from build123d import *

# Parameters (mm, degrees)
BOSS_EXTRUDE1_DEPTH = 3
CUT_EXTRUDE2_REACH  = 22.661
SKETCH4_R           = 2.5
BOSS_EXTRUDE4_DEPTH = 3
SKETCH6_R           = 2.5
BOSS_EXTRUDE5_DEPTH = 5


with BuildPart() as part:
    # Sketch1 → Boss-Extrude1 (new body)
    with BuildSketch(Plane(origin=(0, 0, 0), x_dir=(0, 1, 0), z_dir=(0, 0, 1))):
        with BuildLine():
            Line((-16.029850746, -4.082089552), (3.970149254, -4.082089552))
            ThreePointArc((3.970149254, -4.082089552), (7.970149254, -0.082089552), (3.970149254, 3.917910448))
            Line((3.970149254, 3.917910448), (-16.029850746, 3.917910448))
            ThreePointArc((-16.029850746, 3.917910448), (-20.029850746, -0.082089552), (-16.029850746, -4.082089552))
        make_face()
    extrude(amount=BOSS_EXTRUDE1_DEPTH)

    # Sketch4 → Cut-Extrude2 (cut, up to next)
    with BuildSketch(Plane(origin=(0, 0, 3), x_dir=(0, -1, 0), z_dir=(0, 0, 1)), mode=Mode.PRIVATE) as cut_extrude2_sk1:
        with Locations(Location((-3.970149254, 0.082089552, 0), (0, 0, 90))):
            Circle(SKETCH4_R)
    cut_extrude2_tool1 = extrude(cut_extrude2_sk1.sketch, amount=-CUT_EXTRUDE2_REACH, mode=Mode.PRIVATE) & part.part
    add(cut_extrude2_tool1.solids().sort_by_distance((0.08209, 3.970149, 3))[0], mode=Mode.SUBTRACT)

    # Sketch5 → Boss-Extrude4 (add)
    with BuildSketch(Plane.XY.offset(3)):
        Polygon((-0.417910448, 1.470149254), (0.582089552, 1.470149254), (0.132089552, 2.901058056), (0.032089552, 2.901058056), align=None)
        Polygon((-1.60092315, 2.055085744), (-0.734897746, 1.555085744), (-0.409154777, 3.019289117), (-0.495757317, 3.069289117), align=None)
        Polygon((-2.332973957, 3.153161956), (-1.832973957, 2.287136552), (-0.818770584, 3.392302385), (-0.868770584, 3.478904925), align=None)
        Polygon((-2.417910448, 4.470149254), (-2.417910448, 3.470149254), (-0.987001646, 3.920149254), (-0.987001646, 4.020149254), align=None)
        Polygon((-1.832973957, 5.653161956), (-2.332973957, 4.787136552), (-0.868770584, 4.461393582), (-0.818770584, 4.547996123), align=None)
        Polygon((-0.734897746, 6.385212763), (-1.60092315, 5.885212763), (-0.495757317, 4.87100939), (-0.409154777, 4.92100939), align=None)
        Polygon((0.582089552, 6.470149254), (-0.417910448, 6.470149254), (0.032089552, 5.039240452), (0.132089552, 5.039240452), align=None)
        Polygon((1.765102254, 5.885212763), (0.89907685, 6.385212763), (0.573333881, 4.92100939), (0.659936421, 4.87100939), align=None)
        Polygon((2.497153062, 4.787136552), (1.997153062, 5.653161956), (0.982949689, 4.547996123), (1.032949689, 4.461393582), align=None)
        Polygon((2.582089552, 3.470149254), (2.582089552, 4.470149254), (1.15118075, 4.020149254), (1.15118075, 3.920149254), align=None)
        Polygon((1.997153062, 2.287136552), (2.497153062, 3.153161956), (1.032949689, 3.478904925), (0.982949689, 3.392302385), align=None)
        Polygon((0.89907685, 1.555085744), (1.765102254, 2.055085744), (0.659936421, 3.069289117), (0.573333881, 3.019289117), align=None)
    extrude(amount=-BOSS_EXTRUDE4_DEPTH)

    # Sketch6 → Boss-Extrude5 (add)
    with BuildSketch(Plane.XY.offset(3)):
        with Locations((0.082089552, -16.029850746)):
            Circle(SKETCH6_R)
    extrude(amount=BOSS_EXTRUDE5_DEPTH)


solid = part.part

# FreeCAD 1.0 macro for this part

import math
import FreeCAD as App
import Part
import Sketcher
from FreeCAD import Vector
Q = App.Units.Quantity

doc = App.newDocument("Part")
params = doc.addObject("Spreadsheet::Sheet", "Params")
for row, (alias, value) in enumerate([
    ("sketch1_radius", "4 mm"),
    ("sketch1_height", "20 mm"),
    ("pad1_length", "3 mm"),
    ("sketch2_diameter", "5 mm"),
    ("sketch3_width", "1 mm"),
    ("sketch3_length", "1 mm"),
    ("sketch3_width2", "0.1 mm"),
    ("sketch3_length2", "1.5 mm"),
    ("sketch3_length3", "0.1 mm"),
    ("pad2_length", "3 mm"),
    ("sketch4_diameter", "5 mm"),
    ("pad3_length", "5 mm"),
], start=1):
    params.set(f"A{row}", alias)
    params.set(f"B{row}", "=" + value)
    params.setAlias(f"B{row}", alias)

body = doc.addObject("PartDesign::Body", "Body")

# Sketch on XY plane
sketch1 = body.newObject("Sketcher::SketchObject", "Sketch")
sketch1.AttachmentSupport = (doc.getObject("XY_Plane"), [""])
sketch1.MapMode = "FlatFace"
sketch1.addGeometry(Part.LineSegment(Vector(4.08209, -16.029851, 0), Vector(4.08209, 3.970149, 0)), False)
sketch1.addGeometry(Part.ArcOfCircle(Part.Circle(Vector(0.08209, 3.970149, 0), Vector(0, 0, 1), 4), math.radians(0), math.radians(180)), False)
sketch1.addGeometry(Part.LineSegment(Vector(-3.91791, 3.970149, 0), Vector(-3.91791, -16.029851, 0)), False)
sketch1.addGeometry(Part.ArcOfCircle(Part.Circle(Vector(0.08209, -16.029851, 0), Vector(0, 0, 1), 4), math.radians(180), math.radians(360)), False)
sketch1.addConstraint(Sketcher.Constraint("Tangent", 0, 2, 1, 1))
sketch1.addConstraint(Sketcher.Constraint("Tangent", 1, 2, 2, 1))
sketch1.addConstraint(Sketcher.Constraint("Tangent", 2, 2, 3, 1))
sketch1.addConstraint(Sketcher.Constraint("Tangent", 3, 2, 0, 1))
sketch1.addConstraint(Sketcher.Constraint("Vertical", 0))
sketch1.addConstraint(Sketcher.Constraint("Vertical", 2))
sketch1.addConstraint(Sketcher.Constraint("Radius", 1, Q("4 mm")))
sketch1.addConstraint(Sketcher.Constraint("DistanceY", 0, 1, 0, 2, Q("20 mm")))
sketch1.addConstraint(Sketcher.Constraint("DistanceX", -1, 1, 1, 3, Q("0.08209 mm")))
sketch1.addConstraint(Sketcher.Constraint("DistanceY", -1, 1, 1, 3, Q("3.970149 mm")))
sketch1.setExpression("Constraints[6]", "Params.sketch1_radius")
sketch1.setExpression("Constraints[7]", "Params.sketch1_height")
pad1 = body.newObject("PartDesign::Pad", "Pad")
pad1.Profile = sketch1
pad1.setExpression("Length", "Params.pad1_length")

# Sketch on XY plane
sketch2 = body.newObject("Sketcher::SketchObject", "Sketch001")
sketch2.AttachmentSupport = (doc.getObject("XY_Plane"), [""])
sketch2.MapMode = "FlatFace"
sketch2.AttachmentOffset = App.Placement(Vector(0, 0, 3), App.Rotation())
sketch2.addGeometry(Part.Circle(Vector(0.08209, 3.970149, 0), Vector(0, 0, 1), 2.5), False)
sketch2.addConstraint(Sketcher.Constraint("Diameter", 0, Q("5 mm")))
sketch2.addConstraint(Sketcher.Constraint("DistanceX", -1, 1, 0, 3, Q("0.08209 mm")))
sketch2.addConstraint(Sketcher.Constraint("DistanceY", -1, 1, 0, 3, Q("3.970149 mm")))
sketch2.setExpression("Constraints[0]", "Params.sketch2_diameter")
pocket1 = body.newObject("PartDesign::Pocket", "Pocket")
pocket1.Profile = sketch2
pocket1.Type = "UpToFirst"

# Sketch on XY plane
sketch3 = body.newObject("Sketcher::SketchObject", "Sketch002")
sketch3.AttachmentSupport = (doc.getObject("XY_Plane"), [""])
sketch3.MapMode = "FlatFace"
sketch3.AttachmentOffset = App.Placement(Vector(0, 0, 3), App.Rotation())
sketch3.addGeometry(Part.LineSegment(Vector(-0.41791, 1.470149, 0), Vector(0.58209, 1.470149, 0)), False)
sketch3.addGeometry(Part.LineSegment(Vector(0.58209, 1.470149, 0), Vector(0.13209, 2.901058, 0)), False)
sketch3.addGeometry(Part.LineSegment(Vector(0.13209, 2.901058, 0), Vector(0.03209, 2.901058, 0)), False)
sketch3.addGeometry(Part.LineSegment(Vector(0.03209, 2.901058, 0), Vector(-0.41791, 1.470149, 0)), False)
sketch3.addGeometry(Part.LineSegment(Vector(-1.600923, 2.055086, 0), Vector(-0.734898, 1.555086, 0)), False)
sketch3.addGeometry(Part.LineSegment(Vector(-0.734898, 1.555086, 0), Vector(-0.409155, 3.019289, 0)), False)
sketch3.addGeometry(Part.LineSegment(Vector(-0.409155, 3.019289, 0), Vector(-0.495757, 3.069289, 0)), False)
sketch3.addGeometry(Part.LineSegment(Vector(-0.495757, 3.069289, 0), Vector(-1.600923, 2.055086, 0)), False)
sketch3.addGeometry(Part.LineSegment(Vector(-2.332974, 3.153162, 0), Vector(-1.832974, 2.287137, 0)), False)
sketch3.addGeometry(Part.LineSegment(Vector(-1.832974, 2.287137, 0), Vector(-0.818771, 3.392302, 0)), False)
sketch3.addGeometry(Part.LineSegment(Vector(-0.818771, 3.392302, 0), Vector(-0.868771, 3.478905, 0)), False)
sketch3.addGeometry(Part.LineSegment(Vector(-0.868771, 3.478905, 0), Vector(-2.332974, 3.153162, 0)), False)
sketch3.addGeometry(Part.LineSegment(Vector(-2.41791, 4.470149, 0), Vector(-2.41791, 3.470149, 0)), False)
sketch3.addGeometry(Part.LineSegment(Vector(-2.41791, 3.470149, 0), Vector(-0.987002, 3.920149, 0)), False)
sketch3.addGeometry(Part.LineSegment(Vector(-0.987002, 3.920149, 0), Vector(-0.987002, 4.020149, 0)), False)
sketch3.addGeometry(Part.LineSegment(Vector(-0.987002, 4.020149, 0), Vector(-2.41791, 4.470149, 0)), False)
sketch3.addGeometry(Part.LineSegment(Vector(-1.832974, 5.653162, 0), Vector(-2.332974, 4.787137, 0)), False)
sketch3.addGeometry(Part.LineSegment(Vector(-2.332974, 4.787137, 0), Vector(-0.868771, 4.461394, 0)), False)
sketch3.addGeometry(Part.LineSegment(Vector(-0.868771, 4.461394, 0), Vector(-0.818771, 4.547996, 0)), False)
sketch3.addGeometry(Part.LineSegment(Vector(-0.818771, 4.547996, 0), Vector(-1.832974, 5.653162, 0)), False)
sketch3.addGeometry(Part.LineSegment(Vector(-0.734898, 6.385213, 0), Vector(-1.600923, 5.885213, 0)), False)
sketch3.addGeometry(Part.LineSegment(Vector(-1.600923, 5.885213, 0), Vector(-0.495757, 4.871009, 0)), False)
sketch3.addGeometry(Part.LineSegment(Vector(-0.495757, 4.871009, 0), Vector(-0.409155, 4.921009, 0)), False)
sketch3.addGeometry(Part.LineSegment(Vector(-0.409155, 4.921009, 0), Vector(-0.734898, 6.385213, 0)), False)
sketch3.addGeometry(Part.LineSegment(Vector(0.58209, 6.470149, 0), Vector(-0.41791, 6.470149, 0)), False)
sketch3.addGeometry(Part.LineSegment(Vector(-0.41791, 6.470149, 0), Vector(0.03209, 5.03924, 0)), False)
sketch3.addGeometry(Part.LineSegment(Vector(0.03209, 5.03924, 0), Vector(0.13209, 5.03924, 0)), False)
sketch3.addGeometry(Part.LineSegment(Vector(0.13209, 5.03924, 0), Vector(0.58209, 6.470149, 0)), False)
sketch3.addGeometry(Part.LineSegment(Vector(1.765102, 5.885213, 0), Vector(0.899077, 6.385213, 0)), False)
sketch3.addGeometry(Part.LineSegment(Vector(0.899077, 6.385213, 0), Vector(0.573334, 4.921009, 0)), False)
sketch3.addGeometry(Part.LineSegment(Vector(0.573334, 4.921009, 0), Vector(0.659936, 4.871009, 0)), False)
sketch3.addGeometry(Part.LineSegment(Vector(0.659936, 4.871009, 0), Vector(1.765102, 5.885213, 0)), False)
sketch3.addGeometry(Part.LineSegment(Vector(2.497153, 4.787137, 0), Vector(1.997153, 5.653162, 0)), False)
sketch3.addGeometry(Part.LineSegment(Vector(1.997153, 5.653162, 0), Vector(0.98295, 4.547996, 0)), False)
sketch3.addGeometry(Part.LineSegment(Vector(0.98295, 4.547996, 0), Vector(1.03295, 4.461394, 0)), False)
sketch3.addGeometry(Part.LineSegment(Vector(1.03295, 4.461394, 0), Vector(2.497153, 4.787137, 0)), False)
sketch3.addGeometry(Part.LineSegment(Vector(2.58209, 3.470149, 0), Vector(2.58209, 4.470149, 0)), False)
sketch3.addGeometry(Part.LineSegment(Vector(2.58209, 4.470149, 0), Vector(1.151181, 4.020149, 0)), False)
sketch3.addGeometry(Part.LineSegment(Vector(1.151181, 4.020149, 0), Vector(1.151181, 3.920149, 0)), False)
sketch3.addGeometry(Part.LineSegment(Vector(1.151181, 3.920149, 0), Vector(2.58209, 3.470149, 0)), False)
sketch3.addGeometry(Part.LineSegment(Vector(1.997153, 2.287137, 0), Vector(2.497153, 3.153162, 0)), False)
sketch3.addGeometry(Part.LineSegment(Vector(2.497153, 3.153162, 0), Vector(1.03295, 3.478905, 0)), False)
sketch3.addGeometry(Part.LineSegment(Vector(1.03295, 3.478905, 0), Vector(0.98295, 3.392302, 0)), False)
sketch3.addGeometry(Part.LineSegment(Vector(0.98295, 3.392302, 0), Vector(1.997153, 2.287137, 0)), False)
sketch3.addGeometry(Part.LineSegment(Vector(0.899077, 1.555086, 0), Vector(1.765102, 2.055086, 0)), False)
sketch3.addGeometry(Part.LineSegment(Vector(1.765102, 2.055086, 0), Vector(0.659936, 3.069289, 0)), False)
sketch3.addGeometry(Part.LineSegment(Vector(0.659936, 3.069289, 0), Vector(0.573334, 3.019289, 0)), False)
sketch3.addGeometry(Part.LineSegment(Vector(0.573334, 3.019289, 0), Vector(0.899077, 1.555086, 0)), False)
sketch3.addConstraint(Sketcher.Constraint("Coincident", 0, 2, 1, 1))
sketch3.addConstraint(Sketcher.Constraint("Coincident", 1, 2, 2, 1))
sketch3.addConstraint(Sketcher.Constraint("Coincident", 2, 2, 3, 1))
sketch3.addConstraint(Sketcher.Constraint("Coincident", 3, 2, 0, 1))
sketch3.addConstraint(Sketcher.Constraint("Coincident", 4, 2, 5, 1))
sketch3.addConstraint(Sketcher.Constraint("Coincident", 5, 2, 6, 1))
sketch3.addConstraint(Sketcher.Constraint("Coincident", 6, 2, 7, 1))
sketch3.addConstraint(Sketcher.Constraint("Coincident", 7, 2, 4, 1))
sketch3.addConstraint(Sketcher.Constraint("Coincident", 8, 2, 9, 1))
sketch3.addConstraint(Sketcher.Constraint("Coincident", 9, 2, 10, 1))
sketch3.addConstraint(Sketcher.Constraint("Coincident", 10, 2, 11, 1))
sketch3.addConstraint(Sketcher.Constraint("Coincident", 11, 2, 8, 1))
sketch3.addConstraint(Sketcher.Constraint("Coincident", 12, 2, 13, 1))
sketch3.addConstraint(Sketcher.Constraint("Coincident", 13, 2, 14, 1))
sketch3.addConstraint(Sketcher.Constraint("Coincident", 14, 2, 15, 1))
sketch3.addConstraint(Sketcher.Constraint("Coincident", 15, 2, 12, 1))
sketch3.addConstraint(Sketcher.Constraint("Coincident", 16, 2, 17, 1))
sketch3.addConstraint(Sketcher.Constraint("Coincident", 17, 2, 18, 1))
sketch3.addConstraint(Sketcher.Constraint("Coincident", 18, 2, 19, 1))
sketch3.addConstraint(Sketcher.Constraint("Coincident", 19, 2, 16, 1))
sketch3.addConstraint(Sketcher.Constraint("Coincident", 20, 2, 21, 1))
sketch3.addConstraint(Sketcher.Constraint("Coincident", 21, 2, 22, 1))
sketch3.addConstraint(Sketcher.Constraint("Coincident", 22, 2, 23, 1))
sketch3.addConstraint(Sketcher.Constraint("Coincident", 23, 2, 20, 1))
sketch3.addConstraint(Sketcher.Constraint("Coincident", 24, 2, 25, 1))
sketch3.addConstraint(Sketcher.Constraint("Coincident", 25, 2, 26, 1))
sketch3.addConstraint(Sketcher.Constraint("Coincident", 26, 2, 27, 1))
sketch3.addConstraint(Sketcher.Constraint("Coincident", 27, 2, 24, 1))
sketch3.addConstraint(Sketcher.Constraint("Coincident", 28, 2, 29, 1))
sketch3.addConstraint(Sketcher.Constraint("Coincident", 29, 2, 30, 1))
sketch3.addConstraint(Sketcher.Constraint("Coincident", 30, 2, 31, 1))
sketch3.addConstraint(Sketcher.Constraint("Coincident", 31, 2, 28, 1))
sketch3.addConstraint(Sketcher.Constraint("Coincident", 32, 2, 33, 1))
sketch3.addConstraint(Sketcher.Constraint("Coincident", 33, 2, 34, 1))
sketch3.addConstraint(Sketcher.Constraint("Coincident", 34, 2, 35, 1))
sketch3.addConstraint(Sketcher.Constraint("Coincident", 35, 2, 32, 1))
sketch3.addConstraint(Sketcher.Constraint("Coincident", 36, 2, 37, 1))
sketch3.addConstraint(Sketcher.Constraint("Coincident", 37, 2, 38, 1))
sketch3.addConstraint(Sketcher.Constraint("Coincident", 38, 2, 39, 1))
sketch3.addConstraint(Sketcher.Constraint("Coincident", 39, 2, 36, 1))
sketch3.addConstraint(Sketcher.Constraint("Coincident", 40, 2, 41, 1))
sketch3.addConstraint(Sketcher.Constraint("Coincident", 41, 2, 42, 1))
sketch3.addConstraint(Sketcher.Constraint("Coincident", 42, 2, 43, 1))
sketch3.addConstraint(Sketcher.Constraint("Coincident", 43, 2, 40, 1))
sketch3.addConstraint(Sketcher.Constraint("Coincident", 44, 2, 45, 1))
sketch3.addConstraint(Sketcher.Constraint("Coincident", 45, 2, 46, 1))
sketch3.addConstraint(Sketcher.Constraint("Coincident", 46, 2, 47, 1))
sketch3.addConstraint(Sketcher.Constraint("Coincident", 47, 2, 44, 1))
sketch3.addConstraint(Sketcher.Constraint("Horizontal", 0))
sketch3.addConstraint(Sketcher.Constraint("Horizontal", 2))
sketch3.addConstraint(Sketcher.Constraint("Vertical", 12))
sketch3.addConstraint(Sketcher.Constraint("Vertical", 14))
sketch3.addConstraint(Sketcher.Constraint("Horizontal", 24))
sketch3.addConstraint(Sketcher.Constraint("Horizontal", 26))
sketch3.addConstraint(Sketcher.Constraint("Vertical", 36))
sketch3.addConstraint(Sketcher.Constraint("Vertical", 38))
sketch3.addConstraint(Sketcher.Constraint("Parallel", 4, 6))
sketch3.addConstraint(Sketcher.Constraint("Parallel", 8, 10))
sketch3.addConstraint(Sketcher.Constraint("Perpendicular", 1, 13))
sketch3.addConstraint(Sketcher.Constraint("Perpendicular", 3, 15))
sketch3.addConstraint(Sketcher.Constraint("Perpendicular", 6, 16))
sketch3.addConstraint(Sketcher.Constraint("Perpendicular", 5, 17))
sketch3.addConstraint(Sketcher.Constraint("Parallel", 16, 18))
sketch3.addConstraint(Sketcher.Constraint("Perpendicular", 7, 19))
sketch3.addConstraint(Sketcher.Constraint("Perpendicular", 10, 20))
sketch3.addConstraint(Sketcher.Constraint("Perpendicular", 9, 21))
sketch3.addConstraint(Sketcher.Constraint("Parallel", 20, 22))
sketch3.addConstraint(Sketcher.Constraint("Perpendicular", 11, 23))
sketch3.addConstraint(Sketcher.Constraint("Perpendicular", 13, 25))
sketch3.addConstraint(Sketcher.Constraint("Perpendicular", 15, 27))
sketch3.addConstraint(Sketcher.Constraint("Perpendicular", 18, 28))
sketch3.addConstraint(Sketcher.Constraint("Perpendicular", 17, 29))
sketch3.addConstraint(Sketcher.Constraint("Parallel", 28, 30))
sketch3.addConstraint(Sketcher.Constraint("Perpendicular", 19, 31))
sketch3.addConstraint(Sketcher.Constraint("Perpendicular", 22, 32))
sketch3.addConstraint(Sketcher.Constraint("Perpendicular", 21, 33))
sketch3.addConstraint(Sketcher.Constraint("Parallel", 32, 34))
sketch3.addConstraint(Sketcher.Constraint("Perpendicular", 23, 35))
sketch3.addConstraint(Sketcher.Constraint("Perpendicular", 25, 37))
sketch3.addConstraint(Sketcher.Constraint("Perpendicular", 27, 39))
sketch3.addConstraint(Sketcher.Constraint("Perpendicular", 30, 40))
sketch3.addConstraint(Sketcher.Constraint("Perpendicular", 29, 41))
sketch3.addConstraint(Sketcher.Constraint("Parallel", 40, 42))
sketch3.addConstraint(Sketcher.Constraint("Perpendicular", 31, 43))
sketch3.addConstraint(Sketcher.Constraint("Perpendicular", 34, 44))
sketch3.addConstraint(Sketcher.Constraint("Perpendicular", 33, 45))
sketch3.addConstraint(Sketcher.Constraint("Parallel", 44, 46))
sketch3.addConstraint(Sketcher.Constraint("Perpendicular", 35, 47))
sketch3.addConstraint(Sketcher.Constraint("Horizontal", 23, 2, 28, 2))
sketch3.addConstraint(Sketcher.Constraint("Horizontal", 22, 2, 29, 2))
sketch3.addConstraint(Sketcher.Constraint("Horizontal", 21, 2, 30, 2))
sketch3.addConstraint(Sketcher.Constraint("Horizontal", 20, 2, 31, 2))
sketch3.addConstraint(Sketcher.Constraint("Horizontal", 19, 2, 32, 2))
sketch3.addConstraint(Sketcher.Constraint("Horizontal", 18, 2, 33, 2))
sketch3.addConstraint(Sketcher.Constraint("Horizontal", 17, 2, 34, 2))
sketch3.addConstraint(Sketcher.Constraint("Horizontal", 16, 2, 35, 2))
sketch3.addConstraint(Sketcher.Constraint("Horizontal", 15, 2, 36, 2))
sketch3.addConstraint(Sketcher.Constraint("Horizontal", 14, 2, 37, 2))
sketch3.addConstraint(Sketcher.Constraint("Horizontal", 13, 2, 38, 2))
sketch3.addConstraint(Sketcher.Constraint("Horizontal", 12, 2, 39, 2))
sketch3.addConstraint(Sketcher.Constraint("Horizontal", 11, 2, 40, 2))
sketch3.addConstraint(Sketcher.Constraint("Horizontal", 10, 2, 41, 2))
sketch3.addConstraint(Sketcher.Constraint("Horizontal", 9, 2, 42, 2))
sketch3.addConstraint(Sketcher.Constraint("Horizontal", 7, 2, 44, 2))
sketch3.addConstraint(Sketcher.Constraint("Horizontal", 6, 2, 45, 2))
sketch3.addConstraint(Sketcher.Constraint("Horizontal", 5, 2, 46, 2))
sketch3.addConstraint(Sketcher.Constraint("Vertical", 11, 2, 16, 2))
sketch3.addConstraint(Sketcher.Constraint("Vertical", 10, 2, 17, 2))
sketch3.addConstraint(Sketcher.Constraint("Vertical", 9, 2, 18, 2))
sketch3.addConstraint(Sketcher.Constraint("Vertical", 7, 2, 20, 2))
sketch3.addConstraint(Sketcher.Constraint("Vertical", 6, 2, 21, 2))
sketch3.addConstraint(Sketcher.Constraint("Vertical", 5, 2, 22, 2))
sketch3.addConstraint(Sketcher.Constraint("Vertical", 3, 2, 24, 2))
sketch3.addConstraint(Sketcher.Constraint("Vertical", 2, 2, 25, 2))
sketch3.addConstraint(Sketcher.Constraint("Vertical", 1, 2, 26, 2))
sketch3.addConstraint(Sketcher.Constraint("Vertical", 35, 2, 40, 2))
sketch3.addConstraint(Sketcher.Constraint("Vertical", 34, 2, 41, 2))
sketch3.addConstraint(Sketcher.Constraint("Vertical", 31, 2, 44, 2))
sketch3.addConstraint(Sketcher.Constraint("Equal", 24, 12))
sketch3.addConstraint(Sketcher.Constraint("Equal", 26, 14))
sketch3.addConstraint(Sketcher.Constraint("Equal", 3, 5))
sketch3.addConstraint(Sketcher.Constraint("Equal", 5, 7))
sketch3.addConstraint(Sketcher.Constraint("Equal", 4, 8))
sketch3.addConstraint(Sketcher.Constraint("Equal", 7, 9))
sketch3.addConstraint(Sketcher.Constraint("DistanceX", 0, 1, 0, 2, Q("1 mm")))
sketch3.addConstraint(Sketcher.Constraint("Angle", 4, Q("-30 deg")))
sketch3.addConstraint(Sketcher.Constraint("Distance", 4, Q("1 mm")))
sketch3.addConstraint(Sketcher.Constraint("DistanceX", 2, 2, 2, 1, Q("0.1 mm")))
sketch3.addConstraint(Sketcher.Constraint("Distance", 1, Q("1.5 mm")))
sketch3.addConstraint(Sketcher.Constraint("Distance", 6, Q("0.1 mm")))
sketch3.addConstraint(Sketcher.Constraint("DistanceX", 13, 2, -1, 1, Q("0.987002 mm")))
sketch3.addConstraint(Sketcher.Constraint("DistanceX", -1, 1, 0, 2, Q("0.58209 mm")))
sketch3.addConstraint(Sketcher.Constraint("DistanceY", -1, 1, 0, 2, Q("1.470149 mm")))
sketch3.addConstraint(Sketcher.Constraint("DistanceY", -1, 1, 5, 2, Q("3.019289 mm")))
sketch3.addConstraint(Sketcher.Constraint("DistanceX", 9, 2, -1, 1, Q("0.818771 mm")))
sketch3.addConstraint(Sketcher.Constraint("DistanceY", -1, 1, 11, 2, Q("3.153162 mm")))
sketch3.addConstraint(Sketcher.Constraint("DistanceY", -1, 1, 12, 2, Q("3.470149 mm")))
sketch3.addConstraint(Sketcher.Constraint("DistanceY", -1, 1, 19, 2, Q("5.653162 mm")))
sketch3.addConstraint(Sketcher.Constraint("DistanceY", -1, 1, 21, 2, Q("4.871009 mm")))
sketch3.addConstraint(Sketcher.Constraint("DistanceY", -1, 1, 24, 2, Q("6.470149 mm")))
sketch3.addConstraint(Sketcher.Constraint("DistanceX", -1, 1, 33, 2, Q("0.98295 mm")))
sketch3.addConstraint(Sketcher.Constraint("DistanceX", -1, 1, 36, 2, Q("2.58209 mm")))
sketch3.addConstraint(Sketcher.Constraint("DistanceX", 8, 2, 7, 2, Q("0.232051 mm")))
sketch3.addConstraint(Sketcher.Constraint("DistanceX", 22, 2, 29, 2, Q("0.982489 mm")))
sketch3.setExpression("Constraints[124]", "Params.sketch3_width")
sketch3.setExpression("Constraints[126]", "Params.sketch3_length")
sketch3.setExpression("Constraints[127]", "Params.sketch3_width2")
sketch3.setExpression("Constraints[128]", "Params.sketch3_length2")
sketch3.setExpression("Constraints[129]", "Params.sketch3_length3")
pad2 = body.newObject("PartDesign::Pad", "Pad001")
pad2.Profile = sketch3
pad2.setExpression("Length", "Params.pad2_length")
pad2.Reversed = True

# Sketch on XY plane
sketch4 = body.newObject("Sketcher::SketchObject", "Sketch003")
sketch4.AttachmentSupport = (doc.getObject("XY_Plane"), [""])
sketch4.MapMode = "FlatFace"
sketch4.AttachmentOffset = App.Placement(Vector(0, 0, 3), App.Rotation())
sketch4.addGeometry(Part.Circle(Vector(0.08209, -16.029851, 0), Vector(0, 0, 1), 2.5), False)
sketch4.addConstraint(Sketcher.Constraint("Diameter", 0, Q("5 mm")))
sketch4.addConstraint(Sketcher.Constraint("DistanceX", -1, 1, 0, 3, Q("0.08209 mm")))
sketch4.addConstraint(Sketcher.Constraint("DistanceY", 0, 3, -1, 1, Q("16.029851 mm")))
sketch4.setExpression("Constraints[0]", "Params.sketch4_diameter")
pad3 = body.newObject("PartDesign::Pad", "Pad002")
pad3.Profile = sketch4
pad3.setExpression("Length", "Params.pad3_length")

doc.recompute()
